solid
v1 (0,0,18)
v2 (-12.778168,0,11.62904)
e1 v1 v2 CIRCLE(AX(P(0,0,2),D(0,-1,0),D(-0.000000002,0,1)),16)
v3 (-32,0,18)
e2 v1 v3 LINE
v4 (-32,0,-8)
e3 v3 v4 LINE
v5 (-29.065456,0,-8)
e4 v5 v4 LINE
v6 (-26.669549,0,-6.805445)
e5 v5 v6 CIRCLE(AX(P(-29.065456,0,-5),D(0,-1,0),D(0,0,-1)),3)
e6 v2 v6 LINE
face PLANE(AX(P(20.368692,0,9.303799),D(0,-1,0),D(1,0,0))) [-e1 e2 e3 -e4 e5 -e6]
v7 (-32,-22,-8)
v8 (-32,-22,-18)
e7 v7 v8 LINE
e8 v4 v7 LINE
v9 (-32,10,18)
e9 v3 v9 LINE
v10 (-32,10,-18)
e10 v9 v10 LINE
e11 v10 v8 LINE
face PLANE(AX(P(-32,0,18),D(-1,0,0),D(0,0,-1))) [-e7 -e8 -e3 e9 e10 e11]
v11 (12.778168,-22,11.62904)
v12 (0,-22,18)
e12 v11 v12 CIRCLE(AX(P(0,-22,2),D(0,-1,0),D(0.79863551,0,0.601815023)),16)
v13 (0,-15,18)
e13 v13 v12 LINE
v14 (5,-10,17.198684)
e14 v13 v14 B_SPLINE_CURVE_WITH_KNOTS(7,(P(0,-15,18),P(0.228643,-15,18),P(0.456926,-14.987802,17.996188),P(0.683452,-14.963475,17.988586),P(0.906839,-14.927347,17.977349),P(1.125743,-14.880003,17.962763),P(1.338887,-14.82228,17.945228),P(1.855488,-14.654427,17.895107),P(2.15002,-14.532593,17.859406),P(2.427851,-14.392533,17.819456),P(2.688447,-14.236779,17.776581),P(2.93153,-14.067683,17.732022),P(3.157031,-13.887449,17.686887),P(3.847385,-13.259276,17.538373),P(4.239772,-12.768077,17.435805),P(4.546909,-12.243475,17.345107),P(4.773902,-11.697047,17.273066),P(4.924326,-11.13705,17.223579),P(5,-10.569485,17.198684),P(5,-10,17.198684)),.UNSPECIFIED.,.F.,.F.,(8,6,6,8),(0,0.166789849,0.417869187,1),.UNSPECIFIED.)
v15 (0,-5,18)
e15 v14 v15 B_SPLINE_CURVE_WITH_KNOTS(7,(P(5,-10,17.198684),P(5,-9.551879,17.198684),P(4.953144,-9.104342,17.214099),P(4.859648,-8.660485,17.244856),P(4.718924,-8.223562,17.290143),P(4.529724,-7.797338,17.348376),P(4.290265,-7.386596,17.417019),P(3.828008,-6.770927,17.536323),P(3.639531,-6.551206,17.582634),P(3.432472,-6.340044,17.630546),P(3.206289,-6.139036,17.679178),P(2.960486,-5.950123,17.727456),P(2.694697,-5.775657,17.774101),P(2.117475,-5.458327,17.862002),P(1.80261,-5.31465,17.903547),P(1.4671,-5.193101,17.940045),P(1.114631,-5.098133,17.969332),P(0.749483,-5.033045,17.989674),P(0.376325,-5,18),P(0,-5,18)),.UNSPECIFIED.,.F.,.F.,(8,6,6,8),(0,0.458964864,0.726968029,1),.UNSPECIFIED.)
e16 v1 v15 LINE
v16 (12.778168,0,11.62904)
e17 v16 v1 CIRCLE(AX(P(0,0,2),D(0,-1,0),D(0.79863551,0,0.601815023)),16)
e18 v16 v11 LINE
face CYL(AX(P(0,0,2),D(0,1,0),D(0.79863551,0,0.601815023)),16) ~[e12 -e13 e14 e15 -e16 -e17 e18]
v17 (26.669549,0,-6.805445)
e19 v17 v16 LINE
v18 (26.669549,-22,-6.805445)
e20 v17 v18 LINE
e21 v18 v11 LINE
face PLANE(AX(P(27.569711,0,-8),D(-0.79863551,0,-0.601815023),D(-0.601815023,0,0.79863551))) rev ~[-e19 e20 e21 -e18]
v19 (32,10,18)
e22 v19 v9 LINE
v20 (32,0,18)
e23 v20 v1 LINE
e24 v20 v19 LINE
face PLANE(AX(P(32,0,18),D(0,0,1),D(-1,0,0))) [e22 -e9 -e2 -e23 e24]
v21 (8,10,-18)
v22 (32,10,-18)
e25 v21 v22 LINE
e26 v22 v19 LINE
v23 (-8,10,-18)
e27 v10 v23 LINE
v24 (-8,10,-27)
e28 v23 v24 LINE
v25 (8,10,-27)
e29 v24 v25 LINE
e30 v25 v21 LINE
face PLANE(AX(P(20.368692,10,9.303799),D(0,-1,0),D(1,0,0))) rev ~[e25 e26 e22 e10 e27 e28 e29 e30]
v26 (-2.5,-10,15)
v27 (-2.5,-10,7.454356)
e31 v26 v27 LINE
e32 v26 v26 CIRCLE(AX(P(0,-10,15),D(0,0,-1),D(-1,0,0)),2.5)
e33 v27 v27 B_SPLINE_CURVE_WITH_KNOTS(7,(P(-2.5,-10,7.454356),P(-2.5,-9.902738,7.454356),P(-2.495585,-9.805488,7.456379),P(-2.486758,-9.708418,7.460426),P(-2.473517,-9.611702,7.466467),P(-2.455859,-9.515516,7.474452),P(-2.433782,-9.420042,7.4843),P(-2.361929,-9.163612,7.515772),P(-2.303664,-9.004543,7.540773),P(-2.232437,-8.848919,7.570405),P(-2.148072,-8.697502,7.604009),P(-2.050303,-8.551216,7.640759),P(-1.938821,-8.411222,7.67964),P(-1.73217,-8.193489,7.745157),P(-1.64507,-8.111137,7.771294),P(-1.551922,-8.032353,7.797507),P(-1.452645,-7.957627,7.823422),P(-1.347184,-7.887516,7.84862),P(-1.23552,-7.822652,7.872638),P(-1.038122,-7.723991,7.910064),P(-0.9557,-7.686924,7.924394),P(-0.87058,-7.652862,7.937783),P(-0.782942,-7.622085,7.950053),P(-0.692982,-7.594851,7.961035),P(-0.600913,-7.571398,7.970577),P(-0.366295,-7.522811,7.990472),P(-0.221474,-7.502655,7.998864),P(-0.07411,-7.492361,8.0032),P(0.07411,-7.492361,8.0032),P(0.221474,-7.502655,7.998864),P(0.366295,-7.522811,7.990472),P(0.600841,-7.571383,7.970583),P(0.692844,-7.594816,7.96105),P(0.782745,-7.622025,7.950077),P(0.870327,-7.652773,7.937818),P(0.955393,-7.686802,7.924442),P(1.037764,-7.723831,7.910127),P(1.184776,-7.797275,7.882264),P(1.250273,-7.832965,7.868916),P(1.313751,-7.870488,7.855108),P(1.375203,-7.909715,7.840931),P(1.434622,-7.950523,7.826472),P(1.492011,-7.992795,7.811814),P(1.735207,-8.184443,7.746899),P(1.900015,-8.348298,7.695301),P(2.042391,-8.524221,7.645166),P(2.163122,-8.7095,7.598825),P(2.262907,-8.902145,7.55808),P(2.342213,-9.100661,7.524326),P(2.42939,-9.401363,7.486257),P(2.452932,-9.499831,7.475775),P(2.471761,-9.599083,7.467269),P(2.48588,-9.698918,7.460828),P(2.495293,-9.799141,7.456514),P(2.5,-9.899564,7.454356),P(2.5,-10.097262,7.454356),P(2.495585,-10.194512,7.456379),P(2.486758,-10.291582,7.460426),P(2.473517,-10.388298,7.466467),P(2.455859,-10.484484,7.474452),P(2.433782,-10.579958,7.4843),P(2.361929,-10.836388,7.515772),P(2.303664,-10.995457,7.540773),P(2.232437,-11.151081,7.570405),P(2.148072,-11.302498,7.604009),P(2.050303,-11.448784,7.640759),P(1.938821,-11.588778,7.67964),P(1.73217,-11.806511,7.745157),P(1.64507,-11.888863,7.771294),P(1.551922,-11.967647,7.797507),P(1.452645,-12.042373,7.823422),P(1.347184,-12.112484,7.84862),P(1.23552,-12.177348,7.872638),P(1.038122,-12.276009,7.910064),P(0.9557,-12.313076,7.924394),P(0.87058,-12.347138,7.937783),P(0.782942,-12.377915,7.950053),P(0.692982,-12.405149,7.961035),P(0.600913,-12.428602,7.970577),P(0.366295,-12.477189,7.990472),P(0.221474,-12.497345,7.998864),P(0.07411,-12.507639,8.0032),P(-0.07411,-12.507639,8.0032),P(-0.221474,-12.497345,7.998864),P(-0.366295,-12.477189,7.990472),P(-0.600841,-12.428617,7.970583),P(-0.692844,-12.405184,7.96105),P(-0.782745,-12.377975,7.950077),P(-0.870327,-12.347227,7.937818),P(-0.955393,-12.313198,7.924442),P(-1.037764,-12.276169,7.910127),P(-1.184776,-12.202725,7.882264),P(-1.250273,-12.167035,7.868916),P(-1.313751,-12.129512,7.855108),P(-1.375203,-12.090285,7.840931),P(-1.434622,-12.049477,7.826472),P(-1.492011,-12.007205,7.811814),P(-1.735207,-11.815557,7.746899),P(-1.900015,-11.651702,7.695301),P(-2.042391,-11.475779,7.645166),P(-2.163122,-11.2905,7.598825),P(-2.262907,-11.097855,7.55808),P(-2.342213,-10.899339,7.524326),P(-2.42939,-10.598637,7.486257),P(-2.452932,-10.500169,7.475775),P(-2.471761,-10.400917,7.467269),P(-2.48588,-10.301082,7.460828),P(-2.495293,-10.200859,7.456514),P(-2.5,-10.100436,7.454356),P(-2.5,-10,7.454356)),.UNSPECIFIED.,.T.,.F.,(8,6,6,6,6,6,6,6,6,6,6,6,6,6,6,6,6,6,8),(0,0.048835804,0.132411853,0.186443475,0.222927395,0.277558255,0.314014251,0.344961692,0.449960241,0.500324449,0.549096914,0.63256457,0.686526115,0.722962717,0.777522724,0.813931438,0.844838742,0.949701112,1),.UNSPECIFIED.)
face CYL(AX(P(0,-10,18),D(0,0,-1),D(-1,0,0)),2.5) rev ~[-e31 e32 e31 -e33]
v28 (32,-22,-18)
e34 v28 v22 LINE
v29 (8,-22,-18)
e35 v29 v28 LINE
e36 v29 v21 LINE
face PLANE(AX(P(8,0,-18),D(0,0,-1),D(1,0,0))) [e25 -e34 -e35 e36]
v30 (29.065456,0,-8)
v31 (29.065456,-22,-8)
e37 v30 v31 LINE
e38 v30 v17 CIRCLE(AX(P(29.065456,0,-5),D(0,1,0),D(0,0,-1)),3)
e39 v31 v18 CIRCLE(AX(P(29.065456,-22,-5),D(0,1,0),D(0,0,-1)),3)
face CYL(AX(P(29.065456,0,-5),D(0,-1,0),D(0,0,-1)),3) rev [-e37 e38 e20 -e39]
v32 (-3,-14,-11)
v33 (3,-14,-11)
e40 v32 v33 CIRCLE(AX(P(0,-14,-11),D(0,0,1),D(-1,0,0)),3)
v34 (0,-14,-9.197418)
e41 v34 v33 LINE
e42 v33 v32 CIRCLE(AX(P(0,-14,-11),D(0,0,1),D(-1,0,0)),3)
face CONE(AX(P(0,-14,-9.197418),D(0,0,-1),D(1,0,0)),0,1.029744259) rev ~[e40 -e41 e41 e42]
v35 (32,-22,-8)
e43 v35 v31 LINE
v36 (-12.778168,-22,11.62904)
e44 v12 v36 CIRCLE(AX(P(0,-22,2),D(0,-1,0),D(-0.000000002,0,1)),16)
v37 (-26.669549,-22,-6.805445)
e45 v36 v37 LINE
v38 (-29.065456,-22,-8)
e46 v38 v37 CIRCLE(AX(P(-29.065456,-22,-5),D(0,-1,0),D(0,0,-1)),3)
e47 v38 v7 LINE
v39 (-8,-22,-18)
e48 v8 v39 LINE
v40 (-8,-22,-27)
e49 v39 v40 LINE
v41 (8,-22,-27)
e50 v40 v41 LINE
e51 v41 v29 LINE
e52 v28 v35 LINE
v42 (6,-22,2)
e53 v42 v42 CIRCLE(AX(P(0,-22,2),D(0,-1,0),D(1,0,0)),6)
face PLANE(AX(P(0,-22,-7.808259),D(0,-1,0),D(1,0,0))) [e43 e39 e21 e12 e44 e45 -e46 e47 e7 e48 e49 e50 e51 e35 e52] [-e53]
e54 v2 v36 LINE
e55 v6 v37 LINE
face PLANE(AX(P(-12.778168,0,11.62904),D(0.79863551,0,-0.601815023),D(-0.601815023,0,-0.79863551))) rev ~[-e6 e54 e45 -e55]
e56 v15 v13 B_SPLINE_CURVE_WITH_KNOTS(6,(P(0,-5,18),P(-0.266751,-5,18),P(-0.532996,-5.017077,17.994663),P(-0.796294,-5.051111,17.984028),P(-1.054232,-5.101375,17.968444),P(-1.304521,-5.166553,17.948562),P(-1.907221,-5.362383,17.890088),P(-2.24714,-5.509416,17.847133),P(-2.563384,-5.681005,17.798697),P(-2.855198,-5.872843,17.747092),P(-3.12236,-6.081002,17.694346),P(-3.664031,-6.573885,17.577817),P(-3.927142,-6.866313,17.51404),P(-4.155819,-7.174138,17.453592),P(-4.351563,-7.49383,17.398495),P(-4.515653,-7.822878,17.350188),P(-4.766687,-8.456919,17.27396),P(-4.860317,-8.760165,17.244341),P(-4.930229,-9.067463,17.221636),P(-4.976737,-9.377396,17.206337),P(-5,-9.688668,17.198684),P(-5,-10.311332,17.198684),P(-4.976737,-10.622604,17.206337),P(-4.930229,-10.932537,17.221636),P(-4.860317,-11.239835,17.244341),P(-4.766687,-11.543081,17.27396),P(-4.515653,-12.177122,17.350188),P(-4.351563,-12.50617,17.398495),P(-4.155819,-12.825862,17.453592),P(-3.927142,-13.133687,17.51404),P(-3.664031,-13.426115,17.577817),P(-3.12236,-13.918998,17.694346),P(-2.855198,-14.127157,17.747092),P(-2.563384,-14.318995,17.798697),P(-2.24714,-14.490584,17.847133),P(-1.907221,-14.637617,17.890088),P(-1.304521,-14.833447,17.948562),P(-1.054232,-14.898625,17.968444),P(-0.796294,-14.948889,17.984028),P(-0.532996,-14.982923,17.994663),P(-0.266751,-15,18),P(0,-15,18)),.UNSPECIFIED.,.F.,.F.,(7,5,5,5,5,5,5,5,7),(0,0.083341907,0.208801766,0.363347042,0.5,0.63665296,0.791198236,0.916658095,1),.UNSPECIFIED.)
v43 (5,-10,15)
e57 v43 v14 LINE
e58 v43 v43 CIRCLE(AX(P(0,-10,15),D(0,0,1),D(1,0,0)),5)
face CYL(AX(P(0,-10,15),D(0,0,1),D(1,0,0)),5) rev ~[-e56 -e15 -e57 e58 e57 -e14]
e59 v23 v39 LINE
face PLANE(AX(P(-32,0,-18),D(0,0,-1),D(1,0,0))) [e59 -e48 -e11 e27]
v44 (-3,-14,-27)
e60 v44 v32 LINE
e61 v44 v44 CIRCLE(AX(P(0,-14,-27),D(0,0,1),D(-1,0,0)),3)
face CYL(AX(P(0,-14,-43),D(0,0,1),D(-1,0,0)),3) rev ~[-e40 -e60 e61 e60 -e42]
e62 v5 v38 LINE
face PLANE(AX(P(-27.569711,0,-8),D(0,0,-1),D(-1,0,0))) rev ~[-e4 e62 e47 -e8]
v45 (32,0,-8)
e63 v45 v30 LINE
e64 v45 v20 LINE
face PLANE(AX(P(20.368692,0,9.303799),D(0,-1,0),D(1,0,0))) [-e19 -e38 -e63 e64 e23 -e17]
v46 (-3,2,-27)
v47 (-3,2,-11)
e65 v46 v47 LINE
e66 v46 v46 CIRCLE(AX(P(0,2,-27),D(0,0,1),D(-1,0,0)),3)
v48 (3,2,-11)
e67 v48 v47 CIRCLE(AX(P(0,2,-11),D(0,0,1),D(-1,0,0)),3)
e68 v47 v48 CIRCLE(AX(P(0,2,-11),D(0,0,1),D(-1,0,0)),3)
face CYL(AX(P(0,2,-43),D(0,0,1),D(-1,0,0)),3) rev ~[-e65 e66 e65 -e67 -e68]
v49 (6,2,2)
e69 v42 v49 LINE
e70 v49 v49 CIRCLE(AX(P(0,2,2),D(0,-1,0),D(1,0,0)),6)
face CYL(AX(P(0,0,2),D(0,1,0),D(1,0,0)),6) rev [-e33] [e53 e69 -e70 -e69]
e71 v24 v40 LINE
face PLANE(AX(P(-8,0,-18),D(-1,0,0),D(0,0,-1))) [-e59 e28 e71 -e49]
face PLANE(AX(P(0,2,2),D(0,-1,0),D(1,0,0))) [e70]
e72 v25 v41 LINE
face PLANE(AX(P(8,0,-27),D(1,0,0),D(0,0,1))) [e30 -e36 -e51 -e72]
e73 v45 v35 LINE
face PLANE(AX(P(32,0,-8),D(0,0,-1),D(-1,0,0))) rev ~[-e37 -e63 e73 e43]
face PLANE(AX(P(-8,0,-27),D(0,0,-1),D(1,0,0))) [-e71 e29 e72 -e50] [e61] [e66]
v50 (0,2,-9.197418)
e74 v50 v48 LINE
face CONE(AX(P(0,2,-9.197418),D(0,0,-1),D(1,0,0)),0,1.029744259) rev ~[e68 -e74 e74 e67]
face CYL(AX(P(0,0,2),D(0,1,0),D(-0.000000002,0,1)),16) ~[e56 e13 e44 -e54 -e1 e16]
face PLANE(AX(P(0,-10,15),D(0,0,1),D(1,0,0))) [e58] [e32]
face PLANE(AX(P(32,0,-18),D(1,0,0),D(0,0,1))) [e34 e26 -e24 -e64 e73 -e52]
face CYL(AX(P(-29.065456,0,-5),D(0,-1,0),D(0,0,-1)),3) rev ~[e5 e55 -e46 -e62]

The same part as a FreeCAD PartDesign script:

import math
import FreeCAD as App
import Part
import Sketcher

V = App.Vector
Q = App.Units.Quantity


def edges_at(feature, points):
    """Names of the edges that pass closest to the given points."""
    edges = feature.Shape.Edges
    near = lambda p: min(range(len(edges)), key=lambda i: edges[i].distToShape(Part.Vertex(*p))[0])
    return sorted({f"Edge{near(p) + 1}" for p in points})


def add_polygon(sketch, points):
    """Adds a closed chain of lines whose ends are joined by coincident constraints."""
    first, n = sketch.GeometryCount, len(points)
    for a, b in zip(points, points[1:] + points[:1]):
        sketch.addGeometry(Part.LineSegment(App.Vector(*a, 0), App.Vector(*b, 0)), False)
    for i in range(n):
        sketch.addConstraint(Sketcher.Constraint("Coincident", first + i, 2, first + (i + 1) % n, 1))

doc = App.newDocument("Part")
params = doc.addObject("Spreadsheet::Sheet", "Params")
for row, (alias, value) in enumerate([
    ("sketch1_diameter", "12 mm"),
    ("sketch1_radius", "16 mm"),
    ("sketch1_width", "24 mm"),
    ("sketch1_width2", "16 mm"),
    ("sketch1_height", "10 mm"),
    ("pad1_length", "22 mm"),
    ("sketch2_width", "64 mm"),
    ("sketch2_width2", "24 mm"),
    ("sketch2_height", "36 mm"),
    ("sketch2_height2", "9 mm"),
    ("pad2_length", "10 mm"),
    ("fillet_radius", "3 mm"),
    ("sketch3_diameter", "5 mm"),
    ("hole_diameter", "5 mm"),
    ("hole_depth", "16 mm"),
    ("hole_cbore_diameter", "10 mm"),
    ("hole_cbore_depth", "3 mm"),
    ("sketch4_diameter", "12 mm"),
    ("pocket1_length", "2 mm"),
    ("sketch5_diameter", "6 mm"),
    ("hole2_diameter", "6 mm"),
    ("hole2_depth", "16 mm"),
], start=1):
    params.set(f"A{row}", alias)
    params.set(f"B{row}", "=" + value)
    params.setAlias(f"B{row}", alias)

body = doc.addObject("PartDesign::Body", "Body")

sketch1 = body.newObject("Sketcher::SketchObject", "Sketch")
sketch1.AttachmentSupport = (doc.getObject("XZ_Plane"), [""])
sketch1.MapMode = "FlatFace"
sketch1.addGeometry([
    Part.ArcOfCircle(Part.Circle(V(0, 2, 0), V(0, 0, 1), 16), math.radians(37), math.radians(90)),
    Part.ArcOfCircle(Part.Circle(V(0, 2, 0), V(0, 0, 1), 16), math.radians(90), math.radians(143)),
    Part.LineSegment(V(-12.8, 11.6, 0), V(-27.6, -8, 0)),
    Part.LineSegment(V(-27.6, -8, 0), V(-32, -8, 0)),
    Part.LineSegment(V(-32, -8, 0), V(-32, -18, 0)),
    Part.LineSegment(V(-32, -18, 0), V(-8, -18, 0)),
    Part.LineSegment(V(-8, -18, 0), V(-8, -27, 0)),
    Part.LineSegment(V(-8, -27, 0), V(8, -27, 0)),
    Part.LineSegment(V(8, -27, 0), V(8, -18, 0)),
    Part.LineSegment(V(8, -18, 0), V(32, -18, 0)),
    Part.LineSegment(V(32, -18, 0), V(32, -8, 0)),
    Part.LineSegment(V(32, -8, 0), V(27.6, -8, 0)),
    Part.LineSegment(V(27.6, -8, 0), V(12.8, 11.6, 0)),
    Part.Circle(V(0, 2, 0), V(0, 0, 1), 6),
], False)
sketch1.addConstraint([
    Sketcher.Constraint("Tangent", 0, 2, 1, 1),
    Sketcher.Constraint("Tangent", 1, 2, 2, 1),
    Sketcher.Constraint("Coincident", 2, 2, 3, 1),
    Sketcher.Constraint("Coincident", 3, 2, 4, 1),
    Sketcher.Constraint("Coincident", 4, 2, 5, 1),
    Sketcher.Constraint("Coincident", 5, 2, 6, 1),
    Sketcher.Constraint("Coincident", 6, 2, 7, 1),
    Sketcher.Constraint("Coincident", 7, 2, 8, 1),
    Sketcher.Constraint("Coincident", 8, 2, 9, 1),
    Sketcher.Constraint("Coincident", 9, 2, 10, 1),
    Sketcher.Constraint("Coincident", 10, 2, 11, 1),
    Sketcher.Constraint("Coincident", 11, 2, 12, 1),
    Sketcher.Constraint("Tangent", 12, 2, 0, 1),
    Sketcher.Constraint("Horizontal", 3),
    Sketcher.Constraint("Vertical", 4),
    Sketcher.Constraint("Horizontal", 5),
    Sketcher.Constraint("Vertical", 6),
    Sketcher.Constraint("Horizontal", 7),
    Sketcher.Constraint("Vertical", 8),
    Sketcher.Constraint("Horizontal", 9),
    Sketcher.Constraint("Vertical", 10),
    Sketcher.Constraint("Horizontal", 11),
    Sketcher.Constraint("Coincident", 13, 3, 0, 3),
    Sketcher.Constraint("Equal", 0, 1),
    Sketcher.Constraint("Symmetric", 5, 2, 8, 2, -2),
    Sketcher.Constraint("Symmetric", 3, 2, 10, 2, -2),
    Sketcher.Constraint("Symmetric", 1, 2, 12, 2, -2),
    Sketcher.Constraint("PointOnObject", 0, 2, -2),
    Sketcher.Constraint("Diameter", 13, 12.0),
    Sketcher.Constraint("Radius", 0, 16.0),
    Sketcher.Constraint("DistanceX", 5, 1, 5, 2, 24.0),
    Sketcher.Constraint("DistanceX", 7, 1, 7, 2, 16.0),
    Sketcher.Constraint("DistanceY", 4, 2, 4, 1, 10.0),
    Sketcher.Constraint("DistanceY", 6, 2, 6, 1, 9.0),
    Sketcher.Constraint("Angle", 2, Q("-127 deg")),
    Sketcher.Constraint("DistanceY", -1, 1, 0, 3, 2.0),
    Sketcher.Constraint("DistanceY", 2, 2, -1, 1, 8.0),
])
sketch1.setExpression("Constraints[28]", "Params.sketch1_diameter")
sketch1.setExpression("Constraints[29]", "Params.sketch1_radius")
sketch1.setExpression("Constraints[30]", "Params.sketch1_width")
sketch1.setExpression("Constraints[31]", "Params.sketch1_width2")
sketch1.setExpression("Constraints[32]", "Params.sketch1_height")
pad1 = body.newObject("PartDesign::Pad", "Pad")
pad1.Profile = sketch1
pad1.setExpression("Length", "Params.pad1_length")

sketch2 = body.newObject("Sketcher::SketchObject", "Sketch001")
sketch2.AttachmentSupport = (doc.getObject("XZ_Plane"), [""])
sketch2.MapMode = "FlatFace"
add_polygon(sketch2, [(32, 18), (-32, 18), (-32, -18), (-8, -18), (-8, -27), (8, -27), (8, -18), (32, -18)])
sketch2.addConstraint([
    Sketcher.Constraint("Horizontal", 0),
    Sketcher.Constraint("Vertical", 1),
    Sketcher.Constraint("Horizontal", 2),
    Sketcher.Constraint("Vertical", 3),
    Sketcher.Constraint("Horizontal", 4),
    Sketcher.Constraint("Vertical", 5),
    Sketcher.Constraint("Horizontal", 6),
    Sketcher.Constraint("Vertical", 7),
    Sketcher.Constraint("Symmetric", 0, 2, 6, 2, -1, 1),
    Sketcher.Constraint("Symmetric", 2, 2, 5, 2, -2),
    Sketcher.Constraint("DistanceX", 0, 2, 0, 1, 64.0),
    Sketcher.Constraint("DistanceX", 2, 1, 2, 2, 24.0),
    Sketcher.Constraint("DistanceY", 1, 2, 1, 1, 36.0),
    Sketcher.Constraint("DistanceY", 3, 2, 3, 1, 9.0),
])
sketch2.setExpression("Constraints[18]", "Params.sketch2_width")
sketch2.setExpression("Constraints[19]", "Params.sketch2_width2")
sketch2.setExpression("Constraints[20]", "Params.sketch2_height")
sketch2.setExpression("Constraints[21]", "Params.sketch2_height2")
pad2 = body.newObject("PartDesign::Pad", "Pad001")
pad2.Profile = sketch2
pad2.setExpression("Length", "Params.pad2_length")
pad2.Reversed = True
doc.recompute()

fillet = body.newObject("PartDesign::Fillet", "Fillet")
fillet.Base = (pad2, edges_at(pad2, [(-27.57, -11, -8), (27.57, -11, -8)]))
fillet.setExpression("Radius", "Params.fillet_radius")

sketch3 = body.newObject("Sketcher::SketchObject", "Sketch002")
sketch3.AttachmentSupport = (doc.getObject("XY_Plane"), [""])
sketch3.MapMode = "FlatFace"
sketch3.AttachmentOffset = App.Placement(V(0, 0, 18), App.Rotation())
sketch3.addGeometry(Part.Circle(V(0, -10, 0), V(0, 0, 1), 2.5), False)
sketch3.addConstraint([
    Sketcher.Constraint("PointOnObject", 0, 3, -2),
    Sketcher.Constraint("Diameter", 0, 5.0),
    Sketcher.Constraint("DistanceY", 0, 3, -1, 1, 10.0),
])
sketch3.setExpression("Constraints[1]", "Params.sketch3_diameter")
doc.recompute()
hole = body.newObject("PartDesign::Hole", "Hole")
hole.Profile = sketch3
hole.ThreadType = "None"
hole.setExpression("Diameter", "Params.hole_diameter")
hole.DepthType = "Dimension"
hole.setExpression("Depth", "Params.hole_depth")
hole.DrillPoint = "Angled"
hole.DrillPointAngle = 118
hole.HoleCutType = "Counterbore"
hole.setExpression("HoleCutDiameter", "Params.hole_cbore_diameter")
hole.setExpression("HoleCutDepth", "Params.hole_cbore_depth")

sketch4 = body.newObject("Sketcher::SketchObject", "Sketch003")
sketch4.AttachmentSupport = (doc.getObject("XZ_Plane"), [""])
sketch4.MapMode = "FlatFace"
sketch4.addGeometry(Part.Circle(V(0, 2, 0), V(0, 0, 1), 6), False)
sketch4.addConstraint([
    Sketcher.Constraint("PointOnObject", 0, 3, -2),
    Sketcher.Constraint("Diameter", 0, 12.0),
    Sketcher.Constraint("DistanceY", -1, 1, 0, 3, 2.0),
])
sketch4.setExpression("Constraints[1]", "Params.sketch4_diameter")
pocket1 = body.newObject("PartDesign::Pocket", "Pocket")
pocket1.Profile = sketch4
pocket1.setExpression("Length", "Params.pocket1_length")

sketch5 = body.newObject("Sketcher::SketchObject", "Sketch004")
sketch5.AttachmentSupport = (doc.getObject("XY_Plane"), [""])
sketch5.MapMode = "FlatFace"
sketch5.AttachmentOffset = App.Placement(V(0, 0, -27), App.Rotation())
sketch5.addGeometry([
    Part.Circle(V(0, 2, 0), V(0, 0, 1), 3),
    Part.Circle(V(0, -14, 0), V(0, 0, 1), 3),
], False)
sketch5.addConstraint([
    Sketcher.Constraint("Equal", 0, 1),
    Sketcher.Constraint("PointOnObject", 0, 3, -2),
    Sketcher.Constraint("PointOnObject", 1, 3, -2),
    Sketcher.Constraint("Diameter", 0, 6.0),
    Sketcher.Constraint("DistanceY", -1, 1, 0, 3, 2.0),
    Sketcher.Constraint("DistanceY", 1, 3, -1, 1, 14.0),
])
sketch5.setExpression("Constraints[3]", "Params.sketch5_diameter")
doc.recompute()
hole2 = body.newObject("PartDesign::Hole", "Hole001")
hole2.Profile = sketch5
hole2.ThreadType = "None"
hole2.setExpression("Diameter", "Params.hole2_diameter")
hole2.DepthType = "Dimension"
hole2.setExpression("Depth", "Params.hole2_depth")
hole2.DrillPoint = "Angled"
hole2.DrillPointAngle = 118
hole2.Reversed = True

doc.recompute()
